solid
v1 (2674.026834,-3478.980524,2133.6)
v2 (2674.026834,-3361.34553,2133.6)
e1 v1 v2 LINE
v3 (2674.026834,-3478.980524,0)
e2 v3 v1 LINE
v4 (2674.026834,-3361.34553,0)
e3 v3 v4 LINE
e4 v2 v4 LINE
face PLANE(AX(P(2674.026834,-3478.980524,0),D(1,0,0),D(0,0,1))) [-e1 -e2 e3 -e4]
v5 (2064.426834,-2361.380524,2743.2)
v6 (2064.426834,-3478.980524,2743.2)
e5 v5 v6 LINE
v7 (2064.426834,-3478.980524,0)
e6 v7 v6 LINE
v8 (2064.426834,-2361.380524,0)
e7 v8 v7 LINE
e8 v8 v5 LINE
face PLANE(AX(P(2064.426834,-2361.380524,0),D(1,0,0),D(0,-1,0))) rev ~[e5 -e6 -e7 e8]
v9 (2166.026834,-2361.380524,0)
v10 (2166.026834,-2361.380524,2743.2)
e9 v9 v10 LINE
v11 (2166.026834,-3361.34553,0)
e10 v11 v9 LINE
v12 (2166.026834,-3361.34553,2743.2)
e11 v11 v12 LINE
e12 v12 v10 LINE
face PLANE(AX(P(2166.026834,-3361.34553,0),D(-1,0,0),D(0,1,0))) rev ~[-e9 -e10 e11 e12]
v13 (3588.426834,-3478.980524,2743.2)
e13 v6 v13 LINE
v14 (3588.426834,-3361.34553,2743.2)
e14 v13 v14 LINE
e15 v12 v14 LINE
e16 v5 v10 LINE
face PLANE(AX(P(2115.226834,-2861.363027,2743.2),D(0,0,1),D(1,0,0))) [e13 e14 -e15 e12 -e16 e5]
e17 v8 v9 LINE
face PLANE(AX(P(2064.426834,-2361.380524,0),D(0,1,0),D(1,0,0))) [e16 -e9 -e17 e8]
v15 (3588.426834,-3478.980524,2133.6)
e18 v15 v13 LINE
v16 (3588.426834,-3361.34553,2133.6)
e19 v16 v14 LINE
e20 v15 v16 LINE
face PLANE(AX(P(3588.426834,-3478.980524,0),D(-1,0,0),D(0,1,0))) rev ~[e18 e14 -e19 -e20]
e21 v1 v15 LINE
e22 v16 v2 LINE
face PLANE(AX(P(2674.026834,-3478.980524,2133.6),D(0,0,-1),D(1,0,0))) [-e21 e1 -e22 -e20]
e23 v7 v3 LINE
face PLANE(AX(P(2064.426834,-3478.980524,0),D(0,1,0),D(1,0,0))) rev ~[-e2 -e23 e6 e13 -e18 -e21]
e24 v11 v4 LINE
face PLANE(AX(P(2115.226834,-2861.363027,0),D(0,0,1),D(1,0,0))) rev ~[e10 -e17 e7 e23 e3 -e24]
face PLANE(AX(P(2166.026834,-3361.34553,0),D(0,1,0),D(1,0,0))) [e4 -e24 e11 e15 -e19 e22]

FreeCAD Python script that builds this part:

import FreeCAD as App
import Part
import Sketcher

V = App.Vector
Q = App.Units.Quantity

doc = App.newDocument("Part")
body = doc.addObject("PartDesign::Body", "Body")

# Sketch on XY plane
sketch1 = body.newObject("Sketcher::SketchObject", "Sketch")
sketch1.AttachmentSupport = (doc.getObject("XY_Plane"), [""])
sketch1.MapMode = "FlatFace"
sketch1.addGeometry([
    Part.LineSegment(V(2064.426834, -2361.380524, 0), V(2064.426834, -3478.980524, 0)),  # 0
    Part.LineSegment(V(2064.426834, -3478.980524, 0), V(3588.426834, -3478.980524, 0)),  # 1
    Part.LineSegment(V(3588.426834, -3478.980524, 0), V(3588.426834, -3361.34553, 0)),  # 2
    Part.LineSegment(V(3588.426834, -3361.34553, 0), V(2166.026834, -3361.34553, 0)),  # 3
    Part.LineSegment(V(2166.026834, -3361.34553, 0), V(2166.026834, -2361.380524, 0)),  # 4
    Part.LineSegment(V(2166.026834, -2361.380524, 0), V(2064.426834, -2361.380524, 0)),  # 5
], False)
sketch1.addConstraint([
    Sketcher.Constraint("Coincident", 0, 2, 1, 1),
    Sketcher.Constraint("Coincident", 1, 2, 2, 1),
    Sketcher.Constraint("Coincident", 2, 2, 3, 1),
    Sketcher.Constraint("Coincident", 3, 2, 4, 1),
    Sketcher.Constraint("Coincident", 4, 2, 5, 1),
    Sketcher.Constraint("Coincident", 5, 2, 0, 1),
    Sketcher.Constraint("Vertical", 0),
    Sketcher.Constraint("Horizontal", 1),
    Sketcher.Constraint("Vertical", 2),
    Sketcher.Constraint("Horizontal", 3),
    Sketcher.Constraint("Vertical", 4),
    Sketcher.Constraint("Horizontal", 5),
    Sketcher.Constraint("DistanceX", 1, 1, 1, 2, Q("60 in")),
    Sketcher.Constraint("DistanceX", 3, 2, 3, 1, Q("56 in")),
    Sketcher.Constraint("DistanceY", 0, 2, 0, 1, Q("44 in")),
    Sketcher.Constraint("DistanceY", 2, 1, 2, 2, 117.634994),
    Sketcher.Constraint("DistanceY", 2, 2, -1, 1, 3361.34553),
    Sketcher.Constraint("DistanceX", -1, 1, 0, 2, 2064.426834),
])
pad1 = body.newObject("PartDesign::Pad", "Pad")
pad1.Profile = sketch1
pad1.Length = Q("108 in")

# Sketch on XZ plane
sketch2 = body.newObject("Sketcher::SketchObject", "Sketch001")
sketch2.AttachmentSupport = (doc.getObject("XZ_Plane"), [""])
sketch2.MapMode = "FlatFace"
sketch2.AttachmentOffset = App.Placement(V(0, 0, 3478.980524), App.Rotation())
sketch2.addGeometry([
    Part.LineSegment(V(2674.026834, 2133.6, 0), V(2674.026834, 0, 0)),
    Part.LineSegment(V(2674.026834, 0, 0), V(3588.426834, 0, 0)),
    Part.LineSegment(V(3588.426834, 0, 0), V(3588.426834, 2133.6, 0)),
    Part.LineSegment(V(3588.426834, 2133.6, 0), V(2674.026834, 2133.6, 0)),
], False)
sketch2.addConstraint([
    Sketcher.Constraint("Coincident", 0, 2, 1, 1),
    Sketcher.Constraint("Coincident", 1, 2, 2, 1),
    Sketcher.Constraint("Coincident", 2, 2, 3, 1),
    Sketcher.Constraint("Coincident", 3, 2, 0, 1),
    Sketcher.Constraint("Vertical", 0),
    Sketcher.Constraint("Horizontal", 1),
    Sketcher.Constraint("Vertical", 2),
    Sketcher.Constraint("Horizontal", 3),
    Sketcher.Constraint("PointOnObject", 0, 2, -1),
    Sketcher.Constraint("DistanceX", 1, 1, 1, 2, Q("36 in")),
    Sketcher.Constraint("DistanceY", 0, 2, 0, 1, Q("84 in")),
    Sketcher.Constraint("DistanceX", -1, 1, 0, 2, 2674.026834),
])
pocket1 = body.newObject("PartDesign::Pocket", "Pocket")
pocket1.Profile = sketch2
pocket1.Type = "ThroughAll"

doc.recompute()
